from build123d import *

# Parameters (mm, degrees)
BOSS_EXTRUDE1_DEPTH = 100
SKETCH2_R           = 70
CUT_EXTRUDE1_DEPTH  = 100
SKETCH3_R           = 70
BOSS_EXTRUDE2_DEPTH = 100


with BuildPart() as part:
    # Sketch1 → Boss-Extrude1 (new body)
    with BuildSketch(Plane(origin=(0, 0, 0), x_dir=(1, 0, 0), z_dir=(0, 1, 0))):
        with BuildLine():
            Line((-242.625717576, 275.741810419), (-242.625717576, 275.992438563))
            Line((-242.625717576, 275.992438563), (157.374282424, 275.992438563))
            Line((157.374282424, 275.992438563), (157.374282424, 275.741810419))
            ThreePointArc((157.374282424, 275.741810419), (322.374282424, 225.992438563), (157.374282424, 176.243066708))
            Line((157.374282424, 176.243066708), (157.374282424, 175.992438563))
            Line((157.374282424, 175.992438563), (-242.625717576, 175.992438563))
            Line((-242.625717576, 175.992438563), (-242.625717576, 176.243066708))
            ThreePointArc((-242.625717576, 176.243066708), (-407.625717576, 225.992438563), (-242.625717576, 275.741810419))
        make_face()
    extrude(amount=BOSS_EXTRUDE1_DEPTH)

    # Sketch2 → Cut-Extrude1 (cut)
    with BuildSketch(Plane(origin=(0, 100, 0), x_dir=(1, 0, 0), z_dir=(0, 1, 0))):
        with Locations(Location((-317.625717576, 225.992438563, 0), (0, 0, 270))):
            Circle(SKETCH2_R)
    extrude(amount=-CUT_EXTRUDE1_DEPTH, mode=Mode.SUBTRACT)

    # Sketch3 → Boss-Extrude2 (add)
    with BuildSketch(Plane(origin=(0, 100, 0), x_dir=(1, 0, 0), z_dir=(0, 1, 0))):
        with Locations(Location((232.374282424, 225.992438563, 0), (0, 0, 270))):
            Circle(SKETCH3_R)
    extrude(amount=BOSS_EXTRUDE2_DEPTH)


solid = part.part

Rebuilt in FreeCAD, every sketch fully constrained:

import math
import FreeCAD as App
import Part
import Sketcher

V = App.Vector
Q = App.Units.Quantity

doc = App.newDocument("Part")
params = doc.addObject("Spreadsheet::Sheet", "Params")
for row, (alias, value) in enumerate([
    ("sketch1_radius", "90 mm"),
    ("sketch1_width", "400 mm"),
    ("pad1_length", "100 mm"),
    ("sketch2_diameter", "140 mm"),
    ("pocket1_length", "100 mm"),
    ("sketch3_diameter", "140 mm"),
    ("pad2_length", "100 mm"),
], start=1):
    params.set(f"A{row}", alias)
    params.set(f"B{row}", "=" + value)
    params.setAlias(f"B{row}", alias)

body = doc.addObject("PartDesign::Body", "Body")

# Sketch on XZ plane
sketch1 = body.newObject("Sketcher::SketchObject", "Sketch")
sketch1.AttachmentSupport = (doc.getObject("XZ_Plane"), [""])
sketch1.MapMode = "FlatFace"
sketch1.addGeometry(Part.LineSegment(V(-242.625718, -275.992439, 0), V(-242.625718, -275.74181, 0)), False)
sketch1.addGeometry(Part.ArcOfCircle(Part.Circle(V(-317.625718, -225.992439, 0), V(0, 0, 1), 90), math.radians(33.55731), math.radians(326.44269)), False)
sketch1.addGeometry(Part.LineSegment(V(-242.625718, -176.243067, 0), V(-242.625718, -175.992439, 0)), False)
sketch1.addGeometry(Part.LineSegment(V(-242.625718, -175.992439, 0), V(157.374282, -175.992439, 0)), False)
sketch1.addGeometry(Part.LineSegment(V(157.374282, -175.992439, 0), V(157.374282, -176.243067, 0)), False)
sketch1.addGeometry(Part.ArcOfCircle(Part.Circle(V(232.374282, -225.992439, 0), V(0, 0, 1), 90), math.radians(-146.44269), math.radians(146.44269)), False)
sketch1.addGeometry(Part.LineSegment(V(157.374282, -275.74181, 0), V(157.374282, -275.992439, 0)), False)
sketch1.addGeometry(Part.LineSegment(V(157.374282, -275.992439, 0), V(-242.625718, -275.992439, 0)), False)
sketch1.addConstraint(Sketcher.Constraint("Coincident", 0, 2, 1, 2))
sketch1.addConstraint(Sketcher.Constraint("Coincident", 1, 1, 2, 1))
sketch1.addConstraint(Sketcher.Constraint("Coincident", 2, 2, 3, 1))
sketch1.addConstraint(Sketcher.Constraint("Coincident", 3, 2, 4, 1))
sketch1.addConstraint(Sketcher.Constraint("Coincident", 4, 2, 5, 2))
sketch1.addConstraint(Sketcher.Constraint("Coincident", 5, 1, 6, 1))
sketch1.addConstraint(Sketcher.Constraint("Coincident", 6, 2, 7, 1))
sketch1.addConstraint(Sketcher.Constraint("Coincident", 7, 2, 0, 1))
sketch1.addConstraint(Sketcher.Constraint("Vertical", 0))
sketch1.addConstraint(Sketcher.Constraint("Vertical", 2))
sketch1.addConstraint(Sketcher.Constraint("Horizontal", 3))
sketch1.addConstraint(Sketcher.Constraint("Vertical", 4))
sketch1.addConstraint(Sketcher.Constraint("Vertical", 6))
sketch1.addConstraint(Sketcher.Constraint("Horizontal", 7))
sketch1.addConstraint(Sketcher.Constraint("Equal", 1, 5))
sketch1.addConstraint(Sketcher.Constraint("Horizontal", 1, 3, 5, 3))
sketch1.addConstraint(Sketcher.Constraint("Horizontal", 1, 1, 4, 2))
sketch1.addConstraint(Sketcher.Constraint("Horizontal", 0, 2, 5, 1))
sketch1.addConstraint(Sketcher.Constraint("Vertical", 0, 2, 1, 1))
sketch1.addConstraint(Sketcher.Constraint("Equal", 0, 2))
sketch1.addConstraint(Sketcher.Constraint("Radius", 1, Q("90 mm")))
sketch1.addConstraint(Sketcher.Constraint("DistanceX", 3, 1, 3, 2, Q("400 mm")))
sketch1.addConstraint(Sketcher.Constraint("DistanceX", 1, 3, 5, 3, Q("550 mm")))
sketch1.addConstraint(Sketcher.Constraint("DistanceY", 1, 3, 2, 2, Q("50 mm")))
sketch1.addConstraint(Sketcher.Constraint("DistanceY", 1, 3, -1, 1, Q("225.992439 mm")))
sketch1.addConstraint(Sketcher.Constraint("DistanceX", 1, 3, -1, 1, Q("317.625718 mm")))
sketch1.setExpression("Constraints[20]", "Params.sketch1_radius")
sketch1.setExpression("Constraints[21]", "Params.sketch1_width")
pad1 = body.newObject("PartDesign::Pad", "Pad")
pad1.Profile = sketch1
pad1.setExpression("Length", "Params.pad1_length")
pad1.Reversed = True

# Sketch on XZ plane
sketch2 = body.newObject("Sketcher::SketchObject", "Sketch001")
sketch2.AttachmentSupport = (doc.getObject("XZ_Plane"), [""])
sketch2.MapMode = "FlatFace"
sketch2.AttachmentOffset = App.Placement(V(0, 0, -100), App.Rotation())
sketch2.addGeometry(Part.Circle(V(-318, -226, 0), V(0, 0, 1), 70), False)
sketch2.addConstraint(Sketcher.Constraint("Diameter", 0, Q("140 mm")))
sketch2.addConstraint(Sketcher.Constraint("DistanceY", 0, 3, -1, 1, Q("225.992439 mm")))
sketch2.addConstraint(Sketcher.Constraint("DistanceX", 0, 3, -1, 1, Q("317.625718 mm")))
sketch2.setExpression("Constraints[0]", "Params.sketch2_diameter")
pocket1 = body.newObject("PartDesign::Pocket", "Pocket")
pocket1.Profile = sketch2
pocket1.setExpression("Length", "Params.pocket1_length")
pocket1.Reversed = True

# Sketch on XZ plane
sketch3 = body.newObject("Sketcher::SketchObject", "Sketch002")
sketch3.AttachmentSupport = (doc.getObject("XZ_Plane"), [""])
sketch3.MapMode = "FlatFace"
sketch3.AttachmentOffset = App.Placement(V(0, 0, -100), App.Rotation())
sketch3.addGeometry(Part.Circle(V(232, -226, 0), V(0, 0, 1), 70), False)
sketch3.addConstraint(Sketcher.Constraint("Diameter", 0, Q("140 mm")))
sketch3.addConstraint(Sketcher.Constraint("DistanceY", 0, 3, -1, 1, Q("225.992439 mm")))
sketch3.addConstraint(Sketcher.Constraint("DistanceX", -1, 1, 0, 3, Q("232.374282 mm")))
sketch3.setExpression("Constraints[0]", "Params.sketch3_diameter")
pad2 = body.newObject("PartDesign::Pad", "Pad001")
pad2.Profile = sketch3
pad2.setExpression("Length", "Params.pad2_length")
pad2.Reversed = True

doc.recompute()
